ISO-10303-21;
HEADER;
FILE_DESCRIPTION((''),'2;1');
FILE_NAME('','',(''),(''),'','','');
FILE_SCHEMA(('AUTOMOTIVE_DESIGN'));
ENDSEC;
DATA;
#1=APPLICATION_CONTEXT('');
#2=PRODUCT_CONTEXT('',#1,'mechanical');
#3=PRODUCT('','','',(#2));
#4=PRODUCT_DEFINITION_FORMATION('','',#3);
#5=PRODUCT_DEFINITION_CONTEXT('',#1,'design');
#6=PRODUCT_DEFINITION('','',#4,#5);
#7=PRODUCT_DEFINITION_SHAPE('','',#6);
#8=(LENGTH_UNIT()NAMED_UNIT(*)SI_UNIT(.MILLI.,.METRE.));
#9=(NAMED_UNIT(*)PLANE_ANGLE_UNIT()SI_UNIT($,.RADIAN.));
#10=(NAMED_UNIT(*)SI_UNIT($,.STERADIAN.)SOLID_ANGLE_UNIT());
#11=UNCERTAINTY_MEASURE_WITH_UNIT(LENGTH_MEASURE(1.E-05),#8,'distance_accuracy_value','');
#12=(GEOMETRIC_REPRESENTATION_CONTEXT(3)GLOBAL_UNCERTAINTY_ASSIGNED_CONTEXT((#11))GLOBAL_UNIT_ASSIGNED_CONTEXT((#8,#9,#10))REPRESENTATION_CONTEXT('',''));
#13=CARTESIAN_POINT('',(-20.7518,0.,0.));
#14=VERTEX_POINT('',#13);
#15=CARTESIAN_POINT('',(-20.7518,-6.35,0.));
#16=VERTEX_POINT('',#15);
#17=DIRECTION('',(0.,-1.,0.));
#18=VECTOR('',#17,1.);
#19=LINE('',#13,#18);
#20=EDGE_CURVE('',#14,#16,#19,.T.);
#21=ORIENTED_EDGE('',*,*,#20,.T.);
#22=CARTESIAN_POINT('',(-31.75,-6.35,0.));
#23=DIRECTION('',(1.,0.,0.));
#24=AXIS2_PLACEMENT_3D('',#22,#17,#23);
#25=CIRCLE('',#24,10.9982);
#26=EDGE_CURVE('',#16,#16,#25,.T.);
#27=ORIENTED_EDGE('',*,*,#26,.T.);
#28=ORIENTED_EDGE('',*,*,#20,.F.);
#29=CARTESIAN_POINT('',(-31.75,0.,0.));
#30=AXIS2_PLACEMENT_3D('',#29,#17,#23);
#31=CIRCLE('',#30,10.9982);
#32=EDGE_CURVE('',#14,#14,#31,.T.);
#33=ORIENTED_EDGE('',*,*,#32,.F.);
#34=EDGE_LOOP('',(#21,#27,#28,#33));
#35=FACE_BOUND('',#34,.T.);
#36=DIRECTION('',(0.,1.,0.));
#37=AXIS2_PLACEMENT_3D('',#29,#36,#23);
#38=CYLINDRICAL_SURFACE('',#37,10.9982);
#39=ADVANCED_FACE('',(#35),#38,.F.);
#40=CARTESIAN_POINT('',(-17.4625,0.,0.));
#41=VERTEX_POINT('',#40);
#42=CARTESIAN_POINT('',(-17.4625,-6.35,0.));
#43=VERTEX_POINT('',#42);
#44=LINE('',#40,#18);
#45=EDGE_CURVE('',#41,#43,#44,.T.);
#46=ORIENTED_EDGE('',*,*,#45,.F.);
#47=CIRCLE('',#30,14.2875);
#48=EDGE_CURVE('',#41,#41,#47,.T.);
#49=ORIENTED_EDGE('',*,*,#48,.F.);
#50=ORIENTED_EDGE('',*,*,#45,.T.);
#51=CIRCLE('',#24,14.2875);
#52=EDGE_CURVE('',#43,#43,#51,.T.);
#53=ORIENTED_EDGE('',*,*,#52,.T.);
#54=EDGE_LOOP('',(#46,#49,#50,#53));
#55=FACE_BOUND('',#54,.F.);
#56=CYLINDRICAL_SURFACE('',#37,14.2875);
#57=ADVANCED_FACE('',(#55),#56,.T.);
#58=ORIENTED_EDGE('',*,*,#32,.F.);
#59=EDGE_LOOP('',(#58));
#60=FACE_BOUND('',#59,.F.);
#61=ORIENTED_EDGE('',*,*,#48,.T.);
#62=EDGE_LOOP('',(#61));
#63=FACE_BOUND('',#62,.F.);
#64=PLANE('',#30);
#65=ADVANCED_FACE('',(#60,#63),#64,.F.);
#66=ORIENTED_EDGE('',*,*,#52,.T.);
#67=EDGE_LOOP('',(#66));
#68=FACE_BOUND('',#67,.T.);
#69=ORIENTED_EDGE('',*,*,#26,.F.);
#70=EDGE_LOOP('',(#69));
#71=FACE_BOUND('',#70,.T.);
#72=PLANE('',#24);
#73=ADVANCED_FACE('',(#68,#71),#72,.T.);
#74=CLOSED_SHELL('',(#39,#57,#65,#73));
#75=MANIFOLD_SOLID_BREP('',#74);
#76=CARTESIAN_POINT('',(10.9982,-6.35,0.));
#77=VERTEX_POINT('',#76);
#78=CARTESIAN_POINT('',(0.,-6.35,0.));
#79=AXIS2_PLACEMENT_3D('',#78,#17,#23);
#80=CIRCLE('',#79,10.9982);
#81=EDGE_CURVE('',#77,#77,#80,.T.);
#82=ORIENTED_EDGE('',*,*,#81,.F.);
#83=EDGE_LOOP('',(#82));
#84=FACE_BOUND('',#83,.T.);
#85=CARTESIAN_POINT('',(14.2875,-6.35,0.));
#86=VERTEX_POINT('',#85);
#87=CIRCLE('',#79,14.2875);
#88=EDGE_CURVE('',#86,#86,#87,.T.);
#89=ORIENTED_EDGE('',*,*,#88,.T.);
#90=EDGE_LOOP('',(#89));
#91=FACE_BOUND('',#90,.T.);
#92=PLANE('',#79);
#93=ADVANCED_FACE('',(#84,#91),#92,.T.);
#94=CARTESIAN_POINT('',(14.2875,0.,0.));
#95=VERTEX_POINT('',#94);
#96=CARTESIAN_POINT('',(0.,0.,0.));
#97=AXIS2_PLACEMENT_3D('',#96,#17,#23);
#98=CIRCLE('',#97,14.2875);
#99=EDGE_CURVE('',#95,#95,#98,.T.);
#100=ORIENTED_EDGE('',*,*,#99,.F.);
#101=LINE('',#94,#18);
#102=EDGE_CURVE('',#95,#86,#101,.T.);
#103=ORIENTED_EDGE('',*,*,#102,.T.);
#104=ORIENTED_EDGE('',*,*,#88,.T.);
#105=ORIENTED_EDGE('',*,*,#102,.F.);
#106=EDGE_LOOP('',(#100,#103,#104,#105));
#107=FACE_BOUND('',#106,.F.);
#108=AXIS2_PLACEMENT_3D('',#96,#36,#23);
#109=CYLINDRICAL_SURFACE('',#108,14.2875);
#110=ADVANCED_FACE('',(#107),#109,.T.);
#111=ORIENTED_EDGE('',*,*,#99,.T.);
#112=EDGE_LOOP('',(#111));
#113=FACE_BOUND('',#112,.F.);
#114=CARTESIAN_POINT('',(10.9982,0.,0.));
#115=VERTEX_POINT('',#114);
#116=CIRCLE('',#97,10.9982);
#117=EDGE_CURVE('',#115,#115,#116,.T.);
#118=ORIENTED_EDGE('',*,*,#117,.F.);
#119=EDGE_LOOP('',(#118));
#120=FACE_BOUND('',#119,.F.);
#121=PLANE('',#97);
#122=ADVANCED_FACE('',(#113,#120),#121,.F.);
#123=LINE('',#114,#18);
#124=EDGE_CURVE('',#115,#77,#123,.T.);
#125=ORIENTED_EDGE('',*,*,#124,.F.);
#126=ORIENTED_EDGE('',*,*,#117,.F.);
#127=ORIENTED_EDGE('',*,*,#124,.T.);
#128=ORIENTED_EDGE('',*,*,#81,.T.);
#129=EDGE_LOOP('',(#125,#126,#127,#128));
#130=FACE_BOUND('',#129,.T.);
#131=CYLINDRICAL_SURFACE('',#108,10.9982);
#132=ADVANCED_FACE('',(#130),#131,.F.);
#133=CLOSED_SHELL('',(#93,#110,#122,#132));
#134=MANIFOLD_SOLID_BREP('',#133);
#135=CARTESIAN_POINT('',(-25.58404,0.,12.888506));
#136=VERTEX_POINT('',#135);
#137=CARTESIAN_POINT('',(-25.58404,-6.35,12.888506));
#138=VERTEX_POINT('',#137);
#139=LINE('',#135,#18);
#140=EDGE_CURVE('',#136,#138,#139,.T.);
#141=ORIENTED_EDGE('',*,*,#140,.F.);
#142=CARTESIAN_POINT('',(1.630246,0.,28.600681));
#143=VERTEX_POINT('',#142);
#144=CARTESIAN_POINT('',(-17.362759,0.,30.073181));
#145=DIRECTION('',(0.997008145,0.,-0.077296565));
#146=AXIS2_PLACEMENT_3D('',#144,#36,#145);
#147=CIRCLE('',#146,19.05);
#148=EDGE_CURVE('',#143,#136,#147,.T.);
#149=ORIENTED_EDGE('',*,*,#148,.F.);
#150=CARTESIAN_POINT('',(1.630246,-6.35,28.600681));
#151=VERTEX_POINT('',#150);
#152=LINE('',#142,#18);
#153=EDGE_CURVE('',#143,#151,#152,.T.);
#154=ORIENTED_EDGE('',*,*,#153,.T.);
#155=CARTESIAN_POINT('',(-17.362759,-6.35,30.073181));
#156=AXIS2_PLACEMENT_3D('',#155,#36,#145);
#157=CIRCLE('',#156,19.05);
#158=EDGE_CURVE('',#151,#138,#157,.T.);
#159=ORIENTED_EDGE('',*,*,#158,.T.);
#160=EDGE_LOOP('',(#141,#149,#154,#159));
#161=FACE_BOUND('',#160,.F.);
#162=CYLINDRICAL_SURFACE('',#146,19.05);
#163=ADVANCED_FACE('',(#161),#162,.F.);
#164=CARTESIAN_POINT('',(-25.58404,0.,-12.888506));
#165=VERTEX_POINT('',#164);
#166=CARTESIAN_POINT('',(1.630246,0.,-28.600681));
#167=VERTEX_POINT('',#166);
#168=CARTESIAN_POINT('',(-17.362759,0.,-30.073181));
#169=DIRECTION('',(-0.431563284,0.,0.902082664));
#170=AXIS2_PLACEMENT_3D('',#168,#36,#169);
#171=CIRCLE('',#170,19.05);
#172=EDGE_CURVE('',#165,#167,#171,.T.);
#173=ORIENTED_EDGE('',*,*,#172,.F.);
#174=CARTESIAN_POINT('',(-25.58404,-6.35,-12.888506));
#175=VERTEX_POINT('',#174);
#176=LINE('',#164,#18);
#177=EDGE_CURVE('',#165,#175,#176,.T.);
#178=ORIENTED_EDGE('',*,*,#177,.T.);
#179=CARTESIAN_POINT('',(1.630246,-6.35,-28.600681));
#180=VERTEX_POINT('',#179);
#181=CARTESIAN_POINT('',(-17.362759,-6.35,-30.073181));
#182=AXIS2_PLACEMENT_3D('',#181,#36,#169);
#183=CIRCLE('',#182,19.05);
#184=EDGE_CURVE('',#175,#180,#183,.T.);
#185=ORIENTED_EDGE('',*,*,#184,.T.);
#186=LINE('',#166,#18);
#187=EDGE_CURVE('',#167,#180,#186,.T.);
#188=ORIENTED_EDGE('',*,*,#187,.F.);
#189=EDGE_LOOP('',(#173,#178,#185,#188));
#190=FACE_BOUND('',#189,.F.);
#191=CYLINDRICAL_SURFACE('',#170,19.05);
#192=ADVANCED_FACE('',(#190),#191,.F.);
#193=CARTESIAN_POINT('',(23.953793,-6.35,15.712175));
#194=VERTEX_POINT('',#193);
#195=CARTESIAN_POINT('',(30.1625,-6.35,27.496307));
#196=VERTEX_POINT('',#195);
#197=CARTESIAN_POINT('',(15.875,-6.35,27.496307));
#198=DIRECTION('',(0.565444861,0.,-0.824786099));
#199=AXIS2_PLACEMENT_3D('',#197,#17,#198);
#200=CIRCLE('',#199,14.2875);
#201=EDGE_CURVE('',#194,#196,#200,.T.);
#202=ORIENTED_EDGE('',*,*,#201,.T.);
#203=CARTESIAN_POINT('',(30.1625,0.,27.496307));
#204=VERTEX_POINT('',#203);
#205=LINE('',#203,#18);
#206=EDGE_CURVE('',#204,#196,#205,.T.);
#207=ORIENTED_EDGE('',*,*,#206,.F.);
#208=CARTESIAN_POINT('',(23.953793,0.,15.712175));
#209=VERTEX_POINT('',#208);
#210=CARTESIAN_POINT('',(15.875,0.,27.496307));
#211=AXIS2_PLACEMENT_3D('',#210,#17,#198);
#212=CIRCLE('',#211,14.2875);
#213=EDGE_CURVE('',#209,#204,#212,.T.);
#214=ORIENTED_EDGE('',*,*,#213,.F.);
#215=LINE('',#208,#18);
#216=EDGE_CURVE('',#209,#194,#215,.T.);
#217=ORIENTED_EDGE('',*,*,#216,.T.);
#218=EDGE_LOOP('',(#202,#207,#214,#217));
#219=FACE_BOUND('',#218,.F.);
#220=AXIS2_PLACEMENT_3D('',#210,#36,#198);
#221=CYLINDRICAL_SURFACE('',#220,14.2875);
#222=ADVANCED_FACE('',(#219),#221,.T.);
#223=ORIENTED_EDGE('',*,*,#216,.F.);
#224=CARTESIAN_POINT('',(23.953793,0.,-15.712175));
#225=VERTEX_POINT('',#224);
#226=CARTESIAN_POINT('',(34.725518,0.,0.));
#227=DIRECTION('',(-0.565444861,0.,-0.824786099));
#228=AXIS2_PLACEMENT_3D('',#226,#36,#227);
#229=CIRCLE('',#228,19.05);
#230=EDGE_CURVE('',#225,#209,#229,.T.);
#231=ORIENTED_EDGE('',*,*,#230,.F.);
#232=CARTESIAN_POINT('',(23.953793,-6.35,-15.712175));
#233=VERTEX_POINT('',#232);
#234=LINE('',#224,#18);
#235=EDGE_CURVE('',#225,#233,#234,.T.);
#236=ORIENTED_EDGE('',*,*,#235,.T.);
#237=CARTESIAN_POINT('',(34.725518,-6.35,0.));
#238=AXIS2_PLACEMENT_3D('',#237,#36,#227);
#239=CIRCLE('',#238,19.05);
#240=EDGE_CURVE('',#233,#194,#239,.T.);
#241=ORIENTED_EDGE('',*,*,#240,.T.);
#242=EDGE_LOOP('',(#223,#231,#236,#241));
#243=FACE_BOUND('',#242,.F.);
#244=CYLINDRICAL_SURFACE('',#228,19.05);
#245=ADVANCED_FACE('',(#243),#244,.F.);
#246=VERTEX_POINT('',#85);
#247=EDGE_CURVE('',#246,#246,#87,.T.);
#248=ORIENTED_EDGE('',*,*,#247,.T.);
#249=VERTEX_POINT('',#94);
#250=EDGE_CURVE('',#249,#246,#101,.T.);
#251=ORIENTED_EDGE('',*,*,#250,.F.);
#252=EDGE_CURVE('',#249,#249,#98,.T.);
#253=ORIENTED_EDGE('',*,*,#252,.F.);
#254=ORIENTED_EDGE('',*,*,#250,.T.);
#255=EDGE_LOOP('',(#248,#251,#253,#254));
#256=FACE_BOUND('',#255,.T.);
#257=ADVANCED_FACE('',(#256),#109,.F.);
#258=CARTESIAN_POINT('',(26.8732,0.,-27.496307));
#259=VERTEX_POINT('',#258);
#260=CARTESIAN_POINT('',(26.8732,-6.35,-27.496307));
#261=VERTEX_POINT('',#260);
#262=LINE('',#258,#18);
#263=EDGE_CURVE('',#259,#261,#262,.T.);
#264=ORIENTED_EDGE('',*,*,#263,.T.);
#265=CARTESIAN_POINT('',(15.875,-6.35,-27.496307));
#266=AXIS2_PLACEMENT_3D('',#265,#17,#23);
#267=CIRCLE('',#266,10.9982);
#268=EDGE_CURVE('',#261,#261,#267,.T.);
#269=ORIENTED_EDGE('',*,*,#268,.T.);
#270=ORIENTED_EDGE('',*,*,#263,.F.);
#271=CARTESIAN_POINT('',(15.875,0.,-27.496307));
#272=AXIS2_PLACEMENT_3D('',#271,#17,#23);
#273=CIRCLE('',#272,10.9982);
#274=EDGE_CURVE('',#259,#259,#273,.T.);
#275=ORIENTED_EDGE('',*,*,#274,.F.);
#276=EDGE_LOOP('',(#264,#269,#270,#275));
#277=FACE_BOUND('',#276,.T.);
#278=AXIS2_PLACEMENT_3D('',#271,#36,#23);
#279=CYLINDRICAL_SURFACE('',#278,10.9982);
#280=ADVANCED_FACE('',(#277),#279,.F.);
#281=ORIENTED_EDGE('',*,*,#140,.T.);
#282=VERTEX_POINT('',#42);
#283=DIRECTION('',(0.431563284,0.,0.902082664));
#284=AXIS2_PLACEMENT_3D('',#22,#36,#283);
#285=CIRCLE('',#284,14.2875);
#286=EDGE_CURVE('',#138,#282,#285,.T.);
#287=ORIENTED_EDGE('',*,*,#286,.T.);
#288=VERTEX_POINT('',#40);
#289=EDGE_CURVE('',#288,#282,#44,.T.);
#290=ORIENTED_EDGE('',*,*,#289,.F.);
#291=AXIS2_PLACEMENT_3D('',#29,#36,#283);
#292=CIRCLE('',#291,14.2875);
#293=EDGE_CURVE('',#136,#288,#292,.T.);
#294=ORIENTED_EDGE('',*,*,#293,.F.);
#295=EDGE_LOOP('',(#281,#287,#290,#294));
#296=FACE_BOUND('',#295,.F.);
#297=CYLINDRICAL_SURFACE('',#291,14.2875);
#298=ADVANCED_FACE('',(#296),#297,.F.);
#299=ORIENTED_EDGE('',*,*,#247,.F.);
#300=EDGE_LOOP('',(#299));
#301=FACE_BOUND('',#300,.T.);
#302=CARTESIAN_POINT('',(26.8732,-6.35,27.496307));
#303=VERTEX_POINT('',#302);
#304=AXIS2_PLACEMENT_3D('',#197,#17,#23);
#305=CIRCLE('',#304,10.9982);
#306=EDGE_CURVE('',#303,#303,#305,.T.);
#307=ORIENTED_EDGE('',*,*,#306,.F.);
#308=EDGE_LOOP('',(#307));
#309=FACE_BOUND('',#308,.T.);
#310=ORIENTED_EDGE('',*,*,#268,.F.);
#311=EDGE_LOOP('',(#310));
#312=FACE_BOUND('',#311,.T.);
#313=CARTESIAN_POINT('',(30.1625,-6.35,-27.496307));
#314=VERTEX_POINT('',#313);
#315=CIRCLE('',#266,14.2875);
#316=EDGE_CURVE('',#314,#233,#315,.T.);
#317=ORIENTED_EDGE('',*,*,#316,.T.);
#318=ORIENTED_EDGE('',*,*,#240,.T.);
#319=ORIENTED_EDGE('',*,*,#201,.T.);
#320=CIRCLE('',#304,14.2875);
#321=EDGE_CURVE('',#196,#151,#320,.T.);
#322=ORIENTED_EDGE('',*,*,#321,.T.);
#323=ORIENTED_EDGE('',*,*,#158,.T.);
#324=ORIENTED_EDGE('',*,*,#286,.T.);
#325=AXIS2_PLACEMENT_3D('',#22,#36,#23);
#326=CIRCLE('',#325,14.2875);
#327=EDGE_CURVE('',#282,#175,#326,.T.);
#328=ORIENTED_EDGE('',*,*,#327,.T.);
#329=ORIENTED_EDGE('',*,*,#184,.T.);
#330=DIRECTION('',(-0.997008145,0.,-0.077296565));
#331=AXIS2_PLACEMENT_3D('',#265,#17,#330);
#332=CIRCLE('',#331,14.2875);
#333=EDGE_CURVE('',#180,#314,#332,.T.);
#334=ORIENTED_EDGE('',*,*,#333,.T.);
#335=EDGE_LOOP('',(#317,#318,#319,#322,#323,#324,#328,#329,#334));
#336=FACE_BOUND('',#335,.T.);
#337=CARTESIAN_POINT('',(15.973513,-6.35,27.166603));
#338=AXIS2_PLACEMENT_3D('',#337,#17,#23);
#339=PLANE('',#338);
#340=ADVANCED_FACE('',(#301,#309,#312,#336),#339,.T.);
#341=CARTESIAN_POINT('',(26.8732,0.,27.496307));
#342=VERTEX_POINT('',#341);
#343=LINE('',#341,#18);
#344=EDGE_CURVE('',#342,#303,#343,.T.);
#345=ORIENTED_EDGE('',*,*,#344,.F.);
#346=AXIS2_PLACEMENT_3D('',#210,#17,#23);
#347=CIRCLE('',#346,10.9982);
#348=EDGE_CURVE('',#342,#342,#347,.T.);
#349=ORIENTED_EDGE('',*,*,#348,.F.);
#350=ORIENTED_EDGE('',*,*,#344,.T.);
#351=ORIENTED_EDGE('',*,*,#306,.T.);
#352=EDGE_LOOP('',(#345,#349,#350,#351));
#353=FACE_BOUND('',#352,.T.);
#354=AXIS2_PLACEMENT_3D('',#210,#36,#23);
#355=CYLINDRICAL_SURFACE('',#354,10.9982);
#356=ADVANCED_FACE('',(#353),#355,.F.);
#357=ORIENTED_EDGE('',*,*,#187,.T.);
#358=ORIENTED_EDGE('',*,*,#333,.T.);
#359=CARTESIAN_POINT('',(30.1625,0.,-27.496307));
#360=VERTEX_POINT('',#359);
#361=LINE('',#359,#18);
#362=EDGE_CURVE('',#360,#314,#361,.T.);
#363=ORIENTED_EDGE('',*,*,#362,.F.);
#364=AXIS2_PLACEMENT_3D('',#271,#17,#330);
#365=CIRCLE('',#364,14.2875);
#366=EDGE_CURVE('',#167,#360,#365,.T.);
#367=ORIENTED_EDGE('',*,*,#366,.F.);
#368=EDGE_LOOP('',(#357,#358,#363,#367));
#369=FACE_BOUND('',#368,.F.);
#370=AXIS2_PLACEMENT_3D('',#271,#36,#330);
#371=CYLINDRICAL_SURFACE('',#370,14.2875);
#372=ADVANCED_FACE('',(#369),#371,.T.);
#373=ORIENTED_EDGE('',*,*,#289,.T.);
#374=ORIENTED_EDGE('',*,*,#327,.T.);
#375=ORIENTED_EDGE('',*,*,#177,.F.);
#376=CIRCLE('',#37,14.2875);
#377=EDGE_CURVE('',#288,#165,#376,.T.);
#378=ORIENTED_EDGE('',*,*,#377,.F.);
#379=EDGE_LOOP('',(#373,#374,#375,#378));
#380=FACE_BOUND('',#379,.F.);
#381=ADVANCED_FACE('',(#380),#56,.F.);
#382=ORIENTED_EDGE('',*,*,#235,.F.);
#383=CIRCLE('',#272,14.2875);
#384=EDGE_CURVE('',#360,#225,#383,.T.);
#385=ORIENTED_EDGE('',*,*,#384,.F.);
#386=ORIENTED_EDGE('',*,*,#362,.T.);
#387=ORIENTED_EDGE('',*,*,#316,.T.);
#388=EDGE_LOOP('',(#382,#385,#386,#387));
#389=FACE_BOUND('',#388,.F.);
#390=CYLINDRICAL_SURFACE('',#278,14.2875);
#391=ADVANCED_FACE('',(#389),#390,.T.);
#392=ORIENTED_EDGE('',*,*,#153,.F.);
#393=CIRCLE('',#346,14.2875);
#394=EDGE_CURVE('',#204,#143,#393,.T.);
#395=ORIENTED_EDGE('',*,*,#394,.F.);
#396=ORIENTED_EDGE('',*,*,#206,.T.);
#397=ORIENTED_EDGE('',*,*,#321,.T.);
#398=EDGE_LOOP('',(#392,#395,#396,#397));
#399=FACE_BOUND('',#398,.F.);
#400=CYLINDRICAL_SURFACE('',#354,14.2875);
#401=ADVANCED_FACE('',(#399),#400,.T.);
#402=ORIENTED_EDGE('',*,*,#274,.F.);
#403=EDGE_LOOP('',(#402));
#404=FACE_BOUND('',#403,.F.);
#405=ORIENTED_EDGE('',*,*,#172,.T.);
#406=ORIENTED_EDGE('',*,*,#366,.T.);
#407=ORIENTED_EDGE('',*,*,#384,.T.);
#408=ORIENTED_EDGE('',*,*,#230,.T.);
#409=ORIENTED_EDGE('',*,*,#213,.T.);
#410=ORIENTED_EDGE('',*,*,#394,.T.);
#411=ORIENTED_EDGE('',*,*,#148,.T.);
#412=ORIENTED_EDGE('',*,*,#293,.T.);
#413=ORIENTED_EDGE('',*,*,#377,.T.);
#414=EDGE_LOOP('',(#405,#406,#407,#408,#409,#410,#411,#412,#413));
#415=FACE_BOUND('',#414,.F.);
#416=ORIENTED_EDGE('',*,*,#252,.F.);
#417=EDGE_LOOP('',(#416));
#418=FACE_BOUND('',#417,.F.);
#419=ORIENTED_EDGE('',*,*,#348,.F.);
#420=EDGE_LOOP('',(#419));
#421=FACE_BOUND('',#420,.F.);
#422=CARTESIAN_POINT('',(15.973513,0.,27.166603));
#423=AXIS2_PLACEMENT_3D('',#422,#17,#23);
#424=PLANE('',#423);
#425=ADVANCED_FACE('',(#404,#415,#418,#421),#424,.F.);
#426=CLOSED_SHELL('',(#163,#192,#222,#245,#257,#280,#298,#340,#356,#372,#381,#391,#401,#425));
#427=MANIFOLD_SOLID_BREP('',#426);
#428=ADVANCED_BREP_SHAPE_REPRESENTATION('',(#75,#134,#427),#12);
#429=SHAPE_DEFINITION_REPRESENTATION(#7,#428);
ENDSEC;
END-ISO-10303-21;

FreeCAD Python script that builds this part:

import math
import FreeCAD as App
import Part
import Sketcher
Q = App.Units.Quantity

doc = App.newDocument("Part")
params = doc.addObject("Spreadsheet::Sheet", "Params")
for row, (alias, value) in enumerate([
    ("sketch1_radius", "0.75 in"),
    ("sketch1_diameter", "0.866 in"),
    ("sketch1_diameter2", "1.125 in"),
    ("pad1_length", "0.25 in"),
    ("sketch2_diameter", "1.125 in"),
    ("sketch2_diameter2", "0.866 in"),
    ("pad2_length", "0.25 in"),
    ("sketch3_diameter", "1.125 in"),
    ("sketch3_diameter2", "0.866 in"),
    ("pad3_length", "0.25 in"),
], start=1):
    params.set(f"A{row}", alias)
    params.set(f"B{row}", "=" + value)
    params.setAlias(f"B{row}", alias)

body = doc.addObject("PartDesign::Body", "Body")

# Sketch on XZ plane
sketch1 = body.newObject("Sketcher::SketchObject", "Sketch")
sketch1.AttachmentSupport = (doc.getObject("XZ_Plane"), [""])
sketch1.MapMode = "FlatFace"
sketch1.addGeometry([
    Part.ArcOfCircle(Part.Circle(App.Vector(16, 27, 0), App.Vector(0, 0, 1), 14), math.radians(0), math.radians(176)),  # 0
    Part.ArcOfCircle(Part.Circle(App.Vector(-17, 30, 0), App.Vector(0, 0, 1), 19), math.radians(-116), math.radians(-4)),  # 1
    Part.ArcOfCircle(Part.Circle(App.Vector(-32, 0, 0), App.Vector(0, 0, 1), 14), math.radians(0), math.radians(64)),  # 2
    Part.ArcOfCircle(Part.Circle(App.Vector(-32, 0, 0), App.Vector(0, 0, 1), 14), math.radians(-64), math.radians(0)),  # 3
    Part.ArcOfCircle(Part.Circle(App.Vector(-17, -30, 0), App.Vector(0, 0, 1), 19), math.radians(4), math.radians(116)),  # 4
    Part.ArcOfCircle(Part.Circle(App.Vector(16, -27, 0), App.Vector(0, 0, 1), 14), math.radians(-176), math.radians(0)),  # 5
    Part.ArcOfCircle(Part.Circle(App.Vector(16, -27, 0), App.Vector(0, 0, 1), 14), math.radians(0), math.radians(56)),  # 6
    Part.ArcOfCircle(Part.Circle(App.Vector(35, 0, 0), App.Vector(0, 0, 1), 19), math.radians(124), math.radians(236)),  # 7
    Part.ArcOfCircle(Part.Circle(App.Vector(16, 27, 0), App.Vector(0, 0, 1), 14), math.radians(-56), math.radians(0)),  # 8
    Part.Circle(App.Vector(16, -27, 0), App.Vector(0, 0, 1), 11),  # 9
    Part.Circle(App.Vector(0, 0, 0), App.Vector(0, 0, 1), 14),  # 10
    Part.Circle(App.Vector(16, 27, 0), App.Vector(0, 0, 1), 11),  # 11
], False)
sketch1.addConstraint([
    Sketcher.Constraint("Tangent", 0, 2, 1, 2),
    Sketcher.Constraint("Tangent", 1, 1, 2, 2),
    Sketcher.Constraint("Tangent", 2, 1, 3, 2),
    Sketcher.Constraint("Tangent", 3, 1, 4, 2),
    Sketcher.Constraint("Tangent", 4, 1, 5, 1),
    Sketcher.Constraint("Tangent", 5, 2, 6, 1),
    Sketcher.Constraint("Tangent", 6, 2, 7, 2),
    Sketcher.Constraint("Tangent", 7, 1, 8, 1),
    Sketcher.Constraint("Tangent", 8, 2, 0, 1),
    Sketcher.Constraint("Coincident", 10, 3, -1, 1),
    Sketcher.Constraint("Coincident", 9, 3, 5, 3),
    Sketcher.Constraint("Coincident", 11, 3, 0, 3),
    Sketcher.Constraint("Equal", 0, 2),
    Sketcher.Constraint("Equal", 2, 3),
    Sketcher.Constraint("Equal", 1, 4),
    Sketcher.Constraint("Equal", 3, 5),
    Sketcher.Constraint("Equal", 5, 6),
    Sketcher.Constraint("Equal", 4, 7),
    Sketcher.Constraint("Equal", 6, 8),
    Sketcher.Constraint("Equal", 8, 10),
    Sketcher.Constraint("Equal", 9, 11),
    Sketcher.Constraint("Symmetric", 1, 3, 4, 3, -1),
    Sketcher.Constraint("Symmetric", 5, 2, 8, 2, -1),
    Sketcher.Constraint("PointOnObject", 2, 1, -1),
    Sketcher.Constraint("Horizontal", 9, 3, 5, 2),
    Sketcher.Constraint("Radius", 1, Q("0.75 in")),
    Sketcher.Constraint("Diameter", 9, Q("0.866 in")),
    Sketcher.Constraint("Diameter", 10, Q("1.125 in")),
    Sketcher.Constraint("DistanceX", 2, 3, -1, 1, Q("1.25 in")),
    Sketcher.Constraint("DistanceX", -1, 1, 0, 3, Q("0.625 in")),
    Sketcher.Constraint("DistanceY", 0, 2, 1, 3, 1.4725),
])
sketch1.setExpression("Constraints[25]", "Params.sketch1_radius")
sketch1.setExpression("Constraints[26]", "Params.sketch1_diameter")
sketch1.setExpression("Constraints[27]", "Params.sketch1_diameter2")
pad1 = body.newObject("PartDesign::Pad", "Pad")
pad1.Profile = sketch1
pad1.setExpression("Length", "Params.pad1_length")
body2 = doc.addObject("PartDesign::Body", "Body001")

# Sketch on XZ plane
sketch2 = body2.newObject("Sketcher::SketchObject", "Sketch001")
sketch2.AttachmentSupport = (doc.getObject("XZ_Plane001"), [""])
sketch2.MapMode = "FlatFace"
sketch2.addGeometry([
    Part.Circle(App.Vector(0, 0, 0), App.Vector(0, 0, 1), 14),
    Part.Circle(App.Vector(0, 0, 0), App.Vector(0, 0, 1), 11),
], False)
sketch2.addConstraint([
    Sketcher.Constraint("Coincident", 0, 3, -1, 1),
    Sketcher.Constraint("Coincident", 1, 3, -1, 1),
    Sketcher.Constraint("Diameter", 0, Q("1.125 in")),
    Sketcher.Constraint("Diameter", 1, Q("0.866 in")),
])
sketch2.setExpression("Constraints[2]", "Params.sketch2_diameter")
sketch2.setExpression("Constraints[3]", "Params.sketch2_diameter2")
pad2 = body2.newObject("PartDesign::Pad", "Pad001")
pad2.Profile = sketch2
pad2.setExpression("Length", "Params.pad2_length")
body3 = doc.addObject("PartDesign::Body", "Body002")

# Sketch on XZ plane
sketch3 = body3.newObject("Sketcher::SketchObject", "Sketch002")
sketch3.AttachmentSupport = (doc.getObject("XZ_Plane002"), [""])
sketch3.MapMode = "FlatFace"
sketch3.addGeometry([
    Part.Circle(App.Vector(-32, 0, 0), App.Vector(0, 0, 1), 14),
    Part.Circle(App.Vector(-32, 0, 0), App.Vector(0, 0, 1), 11),
], False)
sketch3.addConstraint([
    Sketcher.Constraint("Coincident", 1, 3, 0, 3),
    Sketcher.Constraint("PointOnObject", 0, 3, -1),
    Sketcher.Constraint("Diameter", 0, Q("1.125 in")),
    Sketcher.Constraint("Diameter", 1, Q("0.866 in")),
    Sketcher.Constraint("DistanceX", 0, 3, -1, 1, Q("1.25 in")),
])
sketch3.setExpression("Constraints[2]", "Params.sketch3_diameter")
sketch3.setExpression("Constraints[3]", "Params.sketch3_diameter2")
pad3 = body3.newObject("PartDesign::Pad", "Pad002")
pad3.Profile = sketch3
pad3.setExpression("Length", "Params.pad3_length")

doc.recompute()
